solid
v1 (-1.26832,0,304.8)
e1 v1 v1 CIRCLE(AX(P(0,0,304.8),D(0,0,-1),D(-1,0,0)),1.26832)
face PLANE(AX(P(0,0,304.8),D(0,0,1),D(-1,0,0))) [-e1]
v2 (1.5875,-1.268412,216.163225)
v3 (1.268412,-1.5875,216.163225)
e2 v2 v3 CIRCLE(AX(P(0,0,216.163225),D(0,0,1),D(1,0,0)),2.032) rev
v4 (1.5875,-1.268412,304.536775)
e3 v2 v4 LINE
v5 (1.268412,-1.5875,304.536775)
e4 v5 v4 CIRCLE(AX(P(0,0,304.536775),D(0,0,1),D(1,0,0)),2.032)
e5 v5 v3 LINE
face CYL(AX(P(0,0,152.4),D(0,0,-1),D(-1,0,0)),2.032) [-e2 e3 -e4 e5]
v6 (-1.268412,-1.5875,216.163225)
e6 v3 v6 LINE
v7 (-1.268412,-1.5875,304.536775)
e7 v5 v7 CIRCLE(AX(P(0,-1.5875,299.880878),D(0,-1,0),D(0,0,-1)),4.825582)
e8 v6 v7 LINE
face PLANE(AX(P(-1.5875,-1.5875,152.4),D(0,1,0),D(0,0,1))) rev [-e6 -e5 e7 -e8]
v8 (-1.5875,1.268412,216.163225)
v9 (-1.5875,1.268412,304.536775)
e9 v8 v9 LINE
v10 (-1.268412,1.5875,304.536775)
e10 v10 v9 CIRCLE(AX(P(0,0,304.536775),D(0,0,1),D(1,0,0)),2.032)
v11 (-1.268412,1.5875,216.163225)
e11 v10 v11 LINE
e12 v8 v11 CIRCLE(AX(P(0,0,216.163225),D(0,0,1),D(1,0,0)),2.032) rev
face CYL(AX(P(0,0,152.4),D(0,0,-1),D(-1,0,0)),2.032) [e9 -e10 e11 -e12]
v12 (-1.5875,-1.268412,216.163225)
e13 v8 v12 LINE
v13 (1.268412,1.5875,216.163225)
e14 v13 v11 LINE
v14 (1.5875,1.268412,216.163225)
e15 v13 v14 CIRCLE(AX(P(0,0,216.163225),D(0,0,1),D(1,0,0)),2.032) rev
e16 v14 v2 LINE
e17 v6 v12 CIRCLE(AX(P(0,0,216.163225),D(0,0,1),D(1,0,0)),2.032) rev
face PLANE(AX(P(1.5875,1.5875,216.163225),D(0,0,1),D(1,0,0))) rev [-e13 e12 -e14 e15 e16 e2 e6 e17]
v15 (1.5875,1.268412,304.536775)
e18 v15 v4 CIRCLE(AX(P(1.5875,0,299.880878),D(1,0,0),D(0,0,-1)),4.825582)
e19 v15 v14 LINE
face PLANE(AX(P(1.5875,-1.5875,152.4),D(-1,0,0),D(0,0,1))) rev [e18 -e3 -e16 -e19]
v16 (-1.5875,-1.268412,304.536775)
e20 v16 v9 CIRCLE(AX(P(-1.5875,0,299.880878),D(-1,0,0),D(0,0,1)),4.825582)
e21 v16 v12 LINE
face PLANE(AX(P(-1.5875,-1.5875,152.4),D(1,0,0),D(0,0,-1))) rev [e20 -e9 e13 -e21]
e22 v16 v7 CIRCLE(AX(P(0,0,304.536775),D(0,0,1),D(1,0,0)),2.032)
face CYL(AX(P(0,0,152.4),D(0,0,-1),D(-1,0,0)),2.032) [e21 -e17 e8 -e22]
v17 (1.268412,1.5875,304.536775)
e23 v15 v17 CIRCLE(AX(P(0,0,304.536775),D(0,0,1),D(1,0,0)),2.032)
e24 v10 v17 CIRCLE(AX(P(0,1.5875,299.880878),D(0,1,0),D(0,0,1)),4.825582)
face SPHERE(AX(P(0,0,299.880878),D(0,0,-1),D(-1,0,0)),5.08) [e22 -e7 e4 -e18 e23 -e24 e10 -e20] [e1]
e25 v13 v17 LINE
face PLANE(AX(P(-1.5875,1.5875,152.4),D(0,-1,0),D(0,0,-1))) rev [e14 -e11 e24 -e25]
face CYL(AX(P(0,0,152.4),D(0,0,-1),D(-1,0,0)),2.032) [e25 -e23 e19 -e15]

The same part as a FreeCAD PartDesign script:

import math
import FreeCAD as App
import Part
import Sketcher
Q = App.Units.Quantity

doc = App.newDocument("Part")
body = doc.addObject("PartDesign::Body", "Body")

# Sketch on XY plane
sketch1 = body.newObject("Sketcher::SketchObject", "Sketch")
sketch1.AttachmentSupport = (doc.getObject("XY_Plane"), [""])
sketch1.MapMode = "FlatFace"
sketch1.addGeometry([
    Part.LineSegment(App.Vector(-1.5875, 1.5875, 0), App.Vector(-1.5875, -1.5875, 0)),
    Part.LineSegment(App.Vector(-1.5875, -1.5875, 0), App.Vector(1.5875, -1.5875, 0)),
    Part.LineSegment(App.Vector(1.5875, -1.5875, 0), App.Vector(1.5875, 1.5875, 0)),
    Part.LineSegment(App.Vector(1.5875, 1.5875, 0), App.Vector(-1.5875, 1.5875, 0)),
], False)
sketch1.addConstraint([
    Sketcher.Constraint("Coincident", 0, 2, 1, 1),
    Sketcher.Constraint("Coincident", 1, 2, 2, 1),
    Sketcher.Constraint("Coincident", 2, 2, 3, 1),
    Sketcher.Constraint("Coincident", 3, 2, 0, 1),
    Sketcher.Constraint("Vertical", 0),
    Sketcher.Constraint("Horizontal", 1),
    Sketcher.Constraint("Vertical", 2),
    Sketcher.Constraint("Horizontal", 3),
    Sketcher.Constraint("Symmetric", 0, 2, 2, 2, -1, 1),
    Sketcher.Constraint("Equal", 3, 0),
    Sketcher.Constraint("DistanceX", 1, 1, 1, 2, Q("0.125 in")),
])
pad1 = body.newObject("PartDesign::Pad", "Pad")
pad1.Profile = sketch1
pad1.Length = Q("6 in")

# Sketch on XY plane
sketch2 = body.newObject("Sketcher::SketchObject", "Sketch001")
sketch2.AttachmentSupport = (doc.getObject("XY_Plane"), [""])
sketch2.MapMode = "FlatFace"
sketch2.addGeometry([
    Part.LineSegment(App.Vector(17.834, 17.834, 0), App.Vector(17.834, -17.834, 0)),  # 0
    Part.LineSegment(App.Vector(17.834, -17.834, 0), App.Vector(-17.834, -17.834, 0)),  # 1
    Part.LineSegment(App.Vector(-17.834, -17.834, 0), App.Vector(-17.834, 17.834, 0)),  # 2
    Part.LineSegment(App.Vector(-17.834, 17.834, 0), App.Vector(17.834, 17.834, 0)),  # 3
    Part.Circle(App.Vector(0, 0, 0), App.Vector(0, 0, 1), 2.032),  # 4
], False)
sketch2.addConstraint([
    Sketcher.Constraint("Coincident", 0, 2, 1, 1),
    Sketcher.Constraint("Coincident", 1, 2, 2, 1),
    Sketcher.Constraint("Coincident", 2, 2, 3, 1),
    Sketcher.Constraint("Coincident", 3, 2, 0, 1),
    Sketcher.Constraint("Vertical", 0),
    Sketcher.Constraint("Horizontal", 1),
    Sketcher.Constraint("Vertical", 2),
    Sketcher.Constraint("Horizontal", 3),
    Sketcher.Constraint("Coincident", 4, 3, -1, 1),
    Sketcher.Constraint("Symmetric", 0, 2, 2, 2, -1, 1),
    Sketcher.Constraint("Equal", 3, 0),
    Sketcher.Constraint("Diameter", 4, Q("0.16 in")),
    Sketcher.Constraint("DistanceX", 1, 2, 1, 1, 35.668),
])
pocket1 = body.newObject("PartDesign::Pocket", "Pocket")
pocket1.Profile = sketch2
pocket1.Type = "ThroughAll"
pocket1.Reversed = True

# Sketch on XZ plane
sketch3 = body.newObject("Sketcher::SketchObject", "Sketch002")
sketch3.AttachmentSupport = (doc.getObject("XZ_Plane"), [""])
sketch3.MapMode = "FlatFace"
sketch3.addGeometry([
    Part.LineSegment(App.Vector(-5.053686, -5.740531, 0), App.Vector(-5.053686, 4.402733, 0)),
    Part.ArcOfCircle(Part.Circle(App.Vector(0, 4.919122, 0), App.Vector(0, 0, 1), 5.08), math.radians(-174.165721), math.radians(-90)),
    Part.LineSegment(App.Vector(0, -0.160878, 0), App.Vector(0, -5.740531, 0)),
    Part.LineSegment(App.Vector(0, -5.740531, 0), App.Vector(-5.053686, -5.740531, 0)),
], False)
sketch3.addConstraint([
    Sketcher.Constraint("Coincident", 0, 2, 1, 1),
    Sketcher.Constraint("Coincident", 1, 2, 2, 1),
    Sketcher.Constraint("Coincident", 2, 2, 3, 1),
    Sketcher.Constraint("Coincident", 3, 2, 0, 1),
    Sketcher.Constraint("Vertical", 0),
    Sketcher.Constraint("Vertical", 2),
    Sketcher.Constraint("Horizontal", 3),
    Sketcher.Constraint("PointOnObject", 1, 3, -2),
    Sketcher.Constraint("PointOnObject", 1, 2, -2),
    Sketcher.Constraint("Radius", 1, Q("0.2 in")),
    Sketcher.Constraint("DistanceX", 3, 2, 3, 1, 5.053686),
    Sketcher.Constraint("DistanceY", 0, 1, 0, 2, 10.143263),
    Sketcher.Constraint("DistanceY", 2, 2, -1, 1, 5.740531),
])
groove = body.newObject("PartDesign::Groove", "Groove")
groove.Profile = sketch3
groove.ReferenceAxis = (sketch3, ["V_Axis"])
groove.Angle = 360
body2 = doc.addObject("PartDesign::Body", "Body001")
doc.recompute()

body2.BaseFeature = body
doc.recompute()

mirroring = doc.addObject("Part::Mirroring", "Mirroring")
mirroring.Source = body
mirroring.Base = App.Vector(0, 0, 152.4)
mirroring.Normal = App.Vector(0, 0, -1)
body3 = doc.addObject("PartDesign::Body", "Body002")
body3.BaseFeature = mirroring
boolean = body2.newObject("PartDesign::Boolean", "Boolean")
boolean.Type = "Fuse"
boolean.addObjects([body3])
doc.recompute()

# Sketch on YZ plane
sketch4 = body2.newObject("Sketcher::SketchObject", "Sketch003")
sketch4.AttachmentSupport = (doc.getObject("YZ_Plane001"), [""])
sketch4.MapMode = "FlatFace"
sketch4.AttachmentOffset = App.Placement(App.Vector(0, 0, 0.0625 * 25.4), App.Rotation())
sketch4.addGeometry([
    Part.LineSegment(App.Vector(-1.5875, 203.463225, 0), App.Vector(-1.5875, -0.835678, 0)),
    Part.LineSegment(App.Vector(-1.5875, -0.835678, 0), App.Vector(1.5875, -0.835678, 0)),
    Part.LineSegment(App.Vector(1.5875, -0.835678, 0), App.Vector(1.5875, 203.463225, 0)),
    Part.LineSegment(App.Vector(1.5875, 203.463225, 0), App.Vector(-1.5875, 203.463225, 0)),
], False)
sketch4.addConstraint([
    Sketcher.Constraint("Coincident", 0, 2, 1, 1),
    Sketcher.Constraint("Coincident", 1, 2, 2, 1),
    Sketcher.Constraint("Coincident", 2, 2, 3, 1),
    Sketcher.Constraint("Coincident", 3, 2, 0, 1),
    Sketcher.Constraint("Vertical", 0),
    Sketcher.Constraint("Horizontal", 1),
    Sketcher.Constraint("Vertical", 2),
    Sketcher.Constraint("Horizontal", 3),
    Sketcher.Constraint("DistanceX", 1, 1, 1, 2, Q("0.125 in")),
    Sketcher.Constraint("DistanceX", 0, 2, -1, 1, Q("0.0625 in")),
    Sketcher.Constraint("DistanceY", 0, 2, 0, 1, 204.298904),
    Sketcher.Constraint("DistanceY", 0, 2, -1, 1, 0.835678),
])
pocket2 = body2.newObject("PartDesign::Pocket", "Pocket001")
pocket2.Profile = sketch4
pocket2.Type = "ThroughAll"

# Sketch on XZ plane
sketch5 = body2.newObject("Sketcher::SketchObject", "Sketch004")
sketch5.AttachmentSupport = (doc.getObject("XZ_Plane001"), [""])
sketch5.MapMode = "FlatFace"
sketch5.AttachmentOffset = App.Placement(App.Vector(0, 0, 0.0625 * 25.4), App.Rotation())
sketch5.addGeometry([
    Part.LineSegment(App.Vector(-1.5875, 216.163225, 0), App.Vector(-1.5875, 203.463225, 0)),
    Part.LineSegment(App.Vector(-1.5875, 203.463225, 0), App.Vector(1.5875, 203.463225, 0)),
    Part.LineSegment(App.Vector(1.5875, 203.463225, 0), App.Vector(1.5875, 216.163225, 0)),
    Part.LineSegment(App.Vector(1.5875, 216.163225, 0), App.Vector(-1.5875, 216.163225, 0)),
], False)
sketch5.addConstraint([
    Sketcher.Constraint("Coincident", 0, 2, 1, 1),
    Sketcher.Constraint("Coincident", 1, 2, 2, 1),
    Sketcher.Constraint("Coincident", 2, 2, 3, 1),
    Sketcher.Constraint("Coincident", 3, 2, 0, 1),
    Sketcher.Constraint("Vertical", 0),
    Sketcher.Constraint("Horizontal", 1),
    Sketcher.Constraint("Vertical", 2),
    Sketcher.Constraint("Horizontal", 3),
    Sketcher.Constraint("DistanceY", 0, 2, 0, 1, Q("0.5 in")),
    Sketcher.Constraint("DistanceX", 1, 1, 1, 2, Q("0.125 in")),
    Sketcher.Constraint("DistanceX", 0, 2, -1, 1, Q("0.0625 in")),
    Sketcher.Constraint("DistanceY", -1, 1, 0, 2, 203.463225),
])
pocket3 = body2.newObject("PartDesign::Pocket", "Pocket002")
pocket3.Profile = sketch5
pocket3.Type = "ThroughAll"
mirroring.Visibility = False

doc.recompute()
